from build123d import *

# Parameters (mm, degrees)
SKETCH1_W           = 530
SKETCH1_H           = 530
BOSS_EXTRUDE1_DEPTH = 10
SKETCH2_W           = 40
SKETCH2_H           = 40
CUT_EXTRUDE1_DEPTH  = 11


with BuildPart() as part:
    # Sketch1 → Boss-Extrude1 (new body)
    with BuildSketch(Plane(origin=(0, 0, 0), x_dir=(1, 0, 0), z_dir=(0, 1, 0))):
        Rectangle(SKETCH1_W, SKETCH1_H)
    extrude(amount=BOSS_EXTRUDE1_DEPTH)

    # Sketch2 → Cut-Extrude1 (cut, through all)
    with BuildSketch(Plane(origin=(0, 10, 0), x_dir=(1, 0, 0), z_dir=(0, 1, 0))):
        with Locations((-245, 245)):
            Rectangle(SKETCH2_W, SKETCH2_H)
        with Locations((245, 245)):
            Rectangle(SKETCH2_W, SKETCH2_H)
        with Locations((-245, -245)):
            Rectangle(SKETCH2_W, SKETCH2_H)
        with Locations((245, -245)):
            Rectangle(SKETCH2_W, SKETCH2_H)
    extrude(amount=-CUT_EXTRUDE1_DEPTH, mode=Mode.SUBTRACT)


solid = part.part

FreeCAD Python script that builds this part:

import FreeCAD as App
import Part
import Sketcher
from FreeCAD import Vector

doc = App.newDocument("Part")
body = doc.addObject("PartDesign::Body", "Body")

# Sketch on XZ plane
sketch1 = doc.addObject("Sketcher::SketchObject", "Sketch")
body.addObject(sketch1)
sketch1.AttachmentSupport = (doc.XZ_Plane, [""])
sketch1.MapMode = "FlatFace"
sketch1.addGeometry([
    Part.LineSegment(Vector(-265, -265, 0), Vector(-265, 265, 0)),
    Part.LineSegment(Vector(-265, 265, 0), Vector(265, 265, 0)),
    Part.LineSegment(Vector(265, 265, 0), Vector(265, -265, 0)),
    Part.LineSegment(Vector(265, -265, 0), Vector(-265, -265, 0)),
], False)
sketch1.addConstraint([
    Sketcher.Constraint("Coincident", 0, 2, 1, 1),
    Sketcher.Constraint("Coincident", 1, 2, 2, 1),
    Sketcher.Constraint("Coincident", 2, 2, 3, 1),
    Sketcher.Constraint("Coincident", 3, 2, 0, 1),
    Sketcher.Constraint("Vertical", 0),
    Sketcher.Constraint("Horizontal", 1),
    Sketcher.Constraint("Vertical", 2),
    Sketcher.Constraint("Horizontal", 3),
    Sketcher.Constraint("Symmetric", 0, 2, 2, 2, -1, 1),
    Sketcher.Constraint("Equal", 3, 0),
    Sketcher.Constraint("DistanceX", 1, 1, 1, 2, 530.0),
])
pad1 = doc.addObject("PartDesign::Pad", "Pad")
body.addObject(pad1)
pad1.Profile = sketch1
pad1.Length = 10
pad1.Reversed = True

# Sketch on XZ plane
sketch2 = doc.addObject("Sketcher::SketchObject", "Sketch001")
body.addObject(sketch2)
sketch2.AttachmentSupport = (doc.XZ_Plane, [""])
sketch2.MapMode = "FlatFace"
sketch2.AttachmentOffset = App.Placement(Vector(0, 0, -10), App.Rotation())
sketch2.addGeometry([
    Part.LineSegment(Vector(-265, -265, 0), Vector(-265, -225, 0)),  # 0
    Part.LineSegment(Vector(-265, -225, 0), Vector(-225, -225, 0)),  # 1
    Part.LineSegment(Vector(-225, -225, 0), Vector(-225, -265, 0)),  # 2
    Part.LineSegment(Vector(-225, -265, 0), Vector(-265, -265, 0)),  # 3
    Part.LineSegment(Vector(225, -265, 0), Vector(225, -225, 0)),  # 4
    Part.LineSegment(Vector(225, -225, 0), Vector(265, -225, 0)),  # 5
    Part.LineSegment(Vector(265, -225, 0), Vector(265, -265, 0)),  # 6
    Part.LineSegment(Vector(265, -265, 0), Vector(225, -265, 0)),  # 7
    Part.LineSegment(Vector(-265, 225, 0), Vector(-265, 265, 0)),  # 8
    Part.LineSegment(Vector(-265, 265, 0), Vector(-225, 265, 0)),  # 9
    Part.LineSegment(Vector(-225, 265, 0), Vector(-225, 225, 0)),  # 10
    Part.LineSegment(Vector(-225, 225, 0), Vector(-265, 225, 0)),  # 11
    Part.LineSegment(Vector(225, 225, 0), Vector(225, 265, 0)),  # 12
    Part.LineSegment(Vector(225, 265, 0), Vector(265, 265, 0)),  # 13
    Part.LineSegment(Vector(265, 265, 0), Vector(265, 225, 0)),  # 14
    Part.LineSegment(Vector(265, 225, 0), Vector(225, 225, 0)),  # 15
], False)
sketch2.addConstraint([
    Sketcher.Constraint("Coincident", 0, 2, 1, 1),
    Sketcher.Constraint("Coincident", 1, 2, 2, 1),
    Sketcher.Constraint("Coincident", 2, 2, 3, 1),
    Sketcher.Constraint("Coincident", 3, 2, 0, 1),
    Sketcher.Constraint("Coincident", 4, 2, 5, 1),
    Sketcher.Constraint("Coincident", 5, 2, 6, 1),
    Sketcher.Constraint("Coincident", 6, 2, 7, 1),
    Sketcher.Constraint("Coincident", 7, 2, 4, 1),
    Sketcher.Constraint("Coincident", 8, 2, 9, 1),
    Sketcher.Constraint("Coincident", 9, 2, 10, 1),
    Sketcher.Constraint("Coincident", 10, 2, 11, 1),
    Sketcher.Constraint("Coincident", 11, 2, 8, 1),
    Sketcher.Constraint("Coincident", 12, 2, 13, 1),
    Sketcher.Constraint("Coincident", 13, 2, 14, 1),
    Sketcher.Constraint("Coincident", 14, 2, 15, 1),
    Sketcher.Constraint("Coincident", 15, 2, 12, 1),
    Sketcher.Constraint("Vertical", 0),
    Sketcher.Constraint("Horizontal", 1),
    Sketcher.Constraint("Vertical", 2),
    Sketcher.Constraint("Horizontal", 3),
    Sketcher.Constraint("Vertical", 4),
    Sketcher.Constraint("Horizontal", 5),
    Sketcher.Constraint("Vertical", 6),
    Sketcher.Constraint("Horizontal", 7),
    Sketcher.Constraint("Vertical", 8),
    Sketcher.Constraint("Horizontal", 9),
    Sketcher.Constraint("Vertical", 10),
    Sketcher.Constraint("Horizontal", 11),
    Sketcher.Constraint("Vertical", 12),
    Sketcher.Constraint("Horizontal", 13),
    Sketcher.Constraint("Vertical", 14),
    Sketcher.Constraint("Horizontal", 15),
    Sketcher.Constraint("Symmetric", 6, 2, 8, 2, -1, 1),
    Sketcher.Constraint("Symmetric", 4, 2, 10, 2, -1, 1),
    Sketcher.Constraint("Symmetric", 2, 2, 12, 2, -1, 1),
    Sketcher.Constraint("Symmetric", 0, 2, 14, 2, -1, 1),
    Sketcher.Constraint("Symmetric", 1, 2, 4, 2, -2),
    Sketcher.Constraint("Symmetric", 3, 2, 6, 2, -2),
    Sketcher.Constraint("Equal", 15, 0),
    Sketcher.Constraint("DistanceX", 1, 1, 1, 2, 40.0),
    Sketcher.Constraint("DistanceX", 0, 2, -1, 1, 265.0),
    Sketcher.Constraint("DistanceY", 0, 2, -1, 1, 225.0),
])
pocket1 = doc.addObject("PartDesign::Pocket", "Pocket")
body.addObject(pocket1)
pocket1.Profile = sketch2
pocket1.Type = "ThroughAll"
pocket1.Reversed = True

doc.recompute()
